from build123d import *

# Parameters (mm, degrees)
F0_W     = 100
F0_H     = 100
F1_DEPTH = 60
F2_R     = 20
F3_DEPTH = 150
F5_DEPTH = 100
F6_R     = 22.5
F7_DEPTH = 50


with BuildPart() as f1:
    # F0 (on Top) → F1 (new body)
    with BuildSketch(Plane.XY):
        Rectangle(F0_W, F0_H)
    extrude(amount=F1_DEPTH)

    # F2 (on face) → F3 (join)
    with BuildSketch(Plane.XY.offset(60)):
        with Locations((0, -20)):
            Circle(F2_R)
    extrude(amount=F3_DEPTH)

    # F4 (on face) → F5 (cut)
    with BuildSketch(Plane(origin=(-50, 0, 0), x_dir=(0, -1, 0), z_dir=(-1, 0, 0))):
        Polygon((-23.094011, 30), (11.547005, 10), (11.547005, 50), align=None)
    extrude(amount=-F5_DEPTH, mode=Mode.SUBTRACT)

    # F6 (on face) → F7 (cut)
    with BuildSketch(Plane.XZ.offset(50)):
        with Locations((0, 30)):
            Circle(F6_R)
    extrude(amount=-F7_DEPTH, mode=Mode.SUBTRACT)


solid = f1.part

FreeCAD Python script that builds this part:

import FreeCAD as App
import Part
import Sketcher
from FreeCAD import Vector
Q = App.Units.Quantity


def add_polygon(sketch, points):
    """Adds a closed chain of lines whose ends are joined by coincident constraints."""
    first, n = sketch.GeometryCount, len(points)
    for a, b in zip(points, points[1:] + points[:1]):
        sketch.addGeometry(Part.LineSegment(App.Vector(*a, 0), App.Vector(*b, 0)), False)
    for i in range(n):
        sketch.addConstraint(Sketcher.Constraint("Coincident", first + i, 2, first + (i + 1) % n, 1))

doc = App.newDocument("Part")
body = doc.addObject("PartDesign::Body", "Body")

sketch1 = doc.addObject("Sketcher::SketchObject", "Sketch")
body.addObject(sketch1)
sketch1.AttachmentSupport = (doc.XY_Plane, [""])
sketch1.MapMode = "FlatFace"
add_polygon(sketch1, [(-50, 50), (-50, -50), (50, -50), (50, 50)])
sketch1.addConstraint([
    Sketcher.Constraint("Vertical", 0),
    Sketcher.Constraint("Horizontal", 1),
    Sketcher.Constraint("Vertical", 2),
    Sketcher.Constraint("Horizontal", 3),
    Sketcher.Constraint("Symmetric", 0, 2, 2, 2, -1, 1),
    Sketcher.Constraint("Equal", 3, 0),
    Sketcher.Constraint("DistanceX", 1, 1, 1, 2, Q("100 mm")),
])
pad1 = doc.addObject("PartDesign::Pad", "Pad")
body.addObject(pad1)
pad1.Profile = sketch1
pad1.Length = 60

sketch2 = doc.addObject("Sketcher::SketchObject", "Sketch001")
body.addObject(sketch2)
sketch2.AttachmentSupport = (doc.XY_Plane, [""])
sketch2.MapMode = "FlatFace"
sketch2.AttachmentOffset = App.Placement(Vector(0, 0, 60), App.Rotation())
sketch2.addGeometry(Part.Circle(Vector(0, -20, 0), Vector(0, 0, 1), 20), False)
sketch2.addConstraint([
    Sketcher.Constraint("PointOnObject", 0, 3, -2),
    Sketcher.Constraint("Diameter", 0, Q("40 mm")),
    Sketcher.Constraint("DistanceY", 0, 3, -1, 1, Q("20 mm")),
])
pad2 = doc.addObject("PartDesign::Pad", "Pad001")
body.addObject(pad2)
pad2.Profile = sketch2
pad2.Length = 150

sketch3 = doc.addObject("Sketcher::SketchObject", "Sketch002")
body.addObject(sketch3)
sketch3.AttachmentSupport = (doc.YZ_Plane, [""])
sketch3.MapMode = "FlatFace"
sketch3.AttachmentOffset = App.Placement(Vector(0, 0, -50), App.Rotation())
add_polygon(sketch3, [(23, 30), (-12, 10), (-12, 50)])
sketch3.addConstraint([
    Sketcher.Constraint("Vertical", 1),
    Sketcher.Constraint("Equal", 0, 2),
    Sketcher.Constraint("DistanceY", 1, 1, 1, 2, Q("40 mm")),
    Sketcher.Constraint("Angle", 0, Q("-150 deg")),
    Sketcher.Constraint("DistanceY", -1, 1, 0, 2, Q("10 mm")),
    Sketcher.Constraint("DistanceX", -1, 1, 2, 2, Q("23.094011 mm")),
])
pocket1 = doc.addObject("PartDesign::Pocket", "Pocket")
body.addObject(pocket1)
pocket1.Profile = sketch3
pocket1.Length = 100
pocket1.Reversed = True

sketch4 = doc.addObject("Sketcher::SketchObject", "Sketch003")
body.addObject(sketch4)
sketch4.AttachmentSupport = (doc.XZ_Plane, [""])
sketch4.MapMode = "FlatFace"
sketch4.AttachmentOffset = App.Placement(Vector(0, 0, 50), App.Rotation())
sketch4.addGeometry(Part.Circle(Vector(0, 30, 0), Vector(0, 0, 1), 22), False)
sketch4.addConstraint([
    Sketcher.Constraint("PointOnObject", 0, 3, -2),
    Sketcher.Constraint("Diameter", 0, Q("45 mm")),
    Sketcher.Constraint("DistanceY", -1, 1, 0, 3, Q("30 mm")),
])
pocket2 = doc.addObject("PartDesign::Pocket", "Pocket001")
body.addObject(pocket2)
pocket2.Profile = sketch4
pocket2.Length = 50

doc.recompute()
